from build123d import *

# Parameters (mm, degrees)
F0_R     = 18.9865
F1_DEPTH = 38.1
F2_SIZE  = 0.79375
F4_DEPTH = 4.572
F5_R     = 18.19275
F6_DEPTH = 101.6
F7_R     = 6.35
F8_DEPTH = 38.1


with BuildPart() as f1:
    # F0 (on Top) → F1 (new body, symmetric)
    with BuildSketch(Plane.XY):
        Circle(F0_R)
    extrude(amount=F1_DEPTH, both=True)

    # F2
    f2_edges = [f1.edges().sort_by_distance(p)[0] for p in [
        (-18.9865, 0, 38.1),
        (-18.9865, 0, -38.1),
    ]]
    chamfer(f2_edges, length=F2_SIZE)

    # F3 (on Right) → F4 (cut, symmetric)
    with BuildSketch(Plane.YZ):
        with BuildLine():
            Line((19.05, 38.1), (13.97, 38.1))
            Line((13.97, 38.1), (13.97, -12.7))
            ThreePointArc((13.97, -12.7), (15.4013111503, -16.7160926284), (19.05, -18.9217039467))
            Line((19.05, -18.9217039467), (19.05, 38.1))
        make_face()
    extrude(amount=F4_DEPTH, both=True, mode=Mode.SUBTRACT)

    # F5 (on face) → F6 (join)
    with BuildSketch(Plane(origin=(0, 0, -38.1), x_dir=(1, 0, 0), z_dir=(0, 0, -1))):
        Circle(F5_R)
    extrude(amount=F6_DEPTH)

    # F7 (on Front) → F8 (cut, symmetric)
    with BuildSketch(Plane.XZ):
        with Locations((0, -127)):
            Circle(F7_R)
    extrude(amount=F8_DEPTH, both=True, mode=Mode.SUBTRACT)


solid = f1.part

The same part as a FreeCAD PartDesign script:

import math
import FreeCAD as App
import Part
import Sketcher
from FreeCAD import Vector
Q = App.Units.Quantity


def edges_at(feature, points):
    """Names of the edges that pass closest to the given points."""
    edges = feature.Shape.Edges
    near = lambda p: min(range(len(edges)), key=lambda i: edges[i].distToShape(Part.Vertex(*p))[0])
    return sorted({f"Edge{near(p) + 1}" for p in points})

doc = App.newDocument("Part")
params = doc.addObject("Spreadsheet::Sheet", "Params")
for row, (alias, value) in enumerate([
    ("sketch1_diameter", "1.495 in"),
    ("pad1_length", "3 in"),
    ("chamfer_size", "0.03125 in"),
    ("sketch2_height", "2 in"),
    ("sketch2_radius", "0.25 in"),
    ("sketch2_width", "0.2 in"),
    ("pocket1_length", "0.36 in"),
    ("pad2_length", "4 in"),
    ("sketch4_diameter", "0.5 in"),
    ("pocket2_length", "3 in"),
], start=1):
    params.set(f"A{row}", alias)
    params.set(f"B{row}", "=" + value)
    params.setAlias(f"B{row}", alias)

body = doc.addObject("PartDesign::Body", "Body")

# Sketch on XY plane
sketch1 = body.newObject("Sketcher::SketchObject", "Sketch")
sketch1.AttachmentSupport = (doc.getObject("XY_Plane"), [""])
sketch1.MapMode = "FlatFace"
sketch1.addGeometry(Part.Circle(Vector(0, 0, 0), Vector(0, 0, 1), 19), False)
sketch1.addConstraint([
    Sketcher.Constraint("Coincident", 0, 3, -1, 1),
    Sketcher.Constraint("Diameter", 0, Q("1.495 in")),
])
sketch1.setExpression("Constraints[1]", "Params.sketch1_diameter")
pad1 = body.newObject("PartDesign::Pad", "Pad")
pad1.Profile = sketch1
pad1.setExpression("Length", "Params.pad1_length")
pad1.Midplane = True
doc.recompute()

chamfer = body.newObject("PartDesign::Chamfer", "Chamfer")
chamfer.Base = (pad1, edges_at(pad1, [(-18.986, 0, 38.1), (-18.986, 0, -38.1)]))
chamfer.setExpression("Size", "Params.chamfer_size")

# Sketch on YZ plane
sketch2 = body.newObject("Sketcher::SketchObject", "Sketch001")
sketch2.AttachmentSupport = (doc.getObject("YZ_Plane"), [""])
sketch2.MapMode = "FlatFace"
sketch2.addGeometry([
    Part.LineSegment(Vector(19, 38, 0), Vector(14, 38, 0)),
    Part.LineSegment(Vector(14, 38, 0), Vector(14, -13, 0)),
    Part.ArcOfCircle(Part.Circle(Vector(20, -13, 0), Vector(0, 0, 1), 6), math.radians(180), math.radians(258)),
    Part.LineSegment(Vector(19, -19, 0), Vector(19, 38, 0)),
], False)
sketch2.addConstraint([
    Sketcher.Constraint("Coincident", 0, 2, 1, 1),
    Sketcher.Constraint("Tangent", 1, 2, 2, 1),
    Sketcher.Constraint("Coincident", 2, 2, 3, 1),
    Sketcher.Constraint("Coincident", 3, 2, 0, 1),
    Sketcher.Constraint("Horizontal", 0),
    Sketcher.Constraint("Vertical", 1),
    Sketcher.Constraint("Vertical", 3),
    Sketcher.Constraint("DistanceY", 1, 2, 1, 1, Q("2 in")),
    Sketcher.Constraint("Radius", 2, Q("0.25 in")),
    Sketcher.Constraint("DistanceX", 0, 2, 0, 1, Q("0.2 in")),
    Sketcher.Constraint("DistanceX", -1, 1, 2, 3, Q("0.8 in")),
    Sketcher.Constraint("DistanceY", 2, 3, -1, 1, Q("0.5 in")),
])
sketch2.setExpression("Constraints[7]", "Params.sketch2_height")
sketch2.setExpression("Constraints[8]", "Params.sketch2_radius")
sketch2.setExpression("Constraints[9]", "Params.sketch2_width")
pocket1 = body.newObject("PartDesign::Pocket", "Pocket")
pocket1.Profile = sketch2
pocket1.setExpression("Length", "Params.pocket1_length")
pocket1.Midplane = True

# Sketch on XY plane
sketch3 = body.newObject("Sketcher::SketchObject", "Sketch002")
sketch3.AttachmentSupport = (doc.getObject("XY_Plane"), [""])
sketch3.MapMode = "FlatFace"
sketch3.AttachmentOffset = App.Placement(Vector(0, 0, -1.5 * 25.4), App.Rotation())
sketch3.addGeometry(Part.Circle(Vector(0, 0, 0), Vector(0, 0, 1), 18), False)
sketch3.addConstraint([
    Sketcher.Constraint("Coincident", 0, 3, -1, 1),
    Sketcher.Constraint("Diameter", 0, Q("1.4325 in")),
])
pad2 = body.newObject("PartDesign::Pad", "Pad001")
pad2.Profile = sketch3
pad2.setExpression("Length", "Params.pad2_length")
pad2.Reversed = True

# Sketch on XZ plane
sketch4 = body.newObject("Sketcher::SketchObject", "Sketch003")
sketch4.AttachmentSupport = (doc.getObject("XZ_Plane"), [""])
sketch4.MapMode = "FlatFace"
sketch4.addGeometry(Part.Circle(Vector(0, -127, 0), Vector(0, 0, 1), 6), False)
sketch4.addConstraint([
    Sketcher.Constraint("PointOnObject", 0, 3, -2),
    Sketcher.Constraint("Diameter", 0, Q("0.5 in")),
    Sketcher.Constraint("DistanceY", 0, 3, -1, 1, Q("5 in")),
])
sketch4.setExpression("Constraints[1]", "Params.sketch4_diameter")
pocket2 = body.newObject("PartDesign::Pocket", "Pocket001")
pocket2.Profile = sketch4
pocket2.setExpression("Length", "Params.pocket2_length")
pocket2.Midplane = True

doc.recompute()
